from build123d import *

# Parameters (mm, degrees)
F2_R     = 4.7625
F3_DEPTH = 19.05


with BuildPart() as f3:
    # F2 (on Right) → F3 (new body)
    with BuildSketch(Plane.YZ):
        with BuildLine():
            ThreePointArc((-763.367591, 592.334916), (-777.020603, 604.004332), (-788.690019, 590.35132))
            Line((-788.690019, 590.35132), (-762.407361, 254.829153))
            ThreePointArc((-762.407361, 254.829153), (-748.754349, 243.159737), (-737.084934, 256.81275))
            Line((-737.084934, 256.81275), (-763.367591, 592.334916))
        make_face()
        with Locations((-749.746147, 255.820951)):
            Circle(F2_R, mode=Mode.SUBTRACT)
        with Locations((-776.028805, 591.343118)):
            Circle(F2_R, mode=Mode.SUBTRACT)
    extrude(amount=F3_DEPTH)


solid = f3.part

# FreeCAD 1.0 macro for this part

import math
import FreeCAD as App
import Part
import Sketcher
from FreeCAD import Vector
Q = App.Units.Quantity

doc = App.newDocument("Part")
body = doc.addObject("PartDesign::Body", "Body")

# Sketch on YZ plane
sketch1 = body.newObject("Sketcher::SketchObject", "Sketch")
sketch1.AttachmentSupport = (doc.getObject("YZ_Plane"), [""])
sketch1.MapMode = "FlatFace"
sketch1.addGeometry([
    Part.ArcOfCircle(Part.Circle(Vector(-776, 591.3, 0), Vector(0, 0, 1), 12.7), math.radians(4), math.radians(184)),  # 0
    Part.LineSegment(Vector(-788.7, 590.4, 0), Vector(-762.4, 254.8, 0)),  # 1
    Part.ArcOfCircle(Part.Circle(Vector(-749.7, 255.8, 0), Vector(0, 0, 1), 12.7), math.radians(-176), math.radians(4)),  # 2
    Part.LineSegment(Vector(-737.1, 256.8, 0), Vector(-763.4, 592.3, 0)),  # 3
    Part.Circle(Vector(-749.7, 255.8, 0), Vector(0, 0, 1), 4.8),  # 4
    Part.Circle(Vector(-776, 591.3, 0), Vector(0, 0, 1), 4.8),  # 5
], False)
sketch1.addConstraint([
    Sketcher.Constraint("Tangent", 0, 2, 1, 1),
    Sketcher.Constraint("Tangent", 1, 2, 2, 1),
    Sketcher.Constraint("Tangent", 2, 2, 3, 1),
    Sketcher.Constraint("Tangent", 3, 2, 0, 1),
    Sketcher.Constraint("Coincident", 4, 3, 2, 3),
    Sketcher.Constraint("Coincident", 5, 3, 0, 3),
    Sketcher.Constraint("Equal", 0, 2),
    Sketcher.Constraint("Equal", 4, 5),
    Sketcher.Constraint("Radius", 0, Q("0.5 in")),
    Sketcher.Constraint("Diameter", 4, Q("0.375 in")),
    Sketcher.Constraint("Distance", 1, Q("13.25 in")),
    Sketcher.Constraint("DistanceY", 1, 2, 4, 3, 0.991798),
    Sketcher.Constraint("DistanceY", -1, 1, 0, 3, 591.343118),
    Sketcher.Constraint("DistanceX", 0, 2, -1, 1, 788.690019),
])
pad1 = body.newObject("PartDesign::Pad", "Pad")
pad1.Profile = sketch1
pad1.Length = Q("0.75 in")

doc.recompute()
